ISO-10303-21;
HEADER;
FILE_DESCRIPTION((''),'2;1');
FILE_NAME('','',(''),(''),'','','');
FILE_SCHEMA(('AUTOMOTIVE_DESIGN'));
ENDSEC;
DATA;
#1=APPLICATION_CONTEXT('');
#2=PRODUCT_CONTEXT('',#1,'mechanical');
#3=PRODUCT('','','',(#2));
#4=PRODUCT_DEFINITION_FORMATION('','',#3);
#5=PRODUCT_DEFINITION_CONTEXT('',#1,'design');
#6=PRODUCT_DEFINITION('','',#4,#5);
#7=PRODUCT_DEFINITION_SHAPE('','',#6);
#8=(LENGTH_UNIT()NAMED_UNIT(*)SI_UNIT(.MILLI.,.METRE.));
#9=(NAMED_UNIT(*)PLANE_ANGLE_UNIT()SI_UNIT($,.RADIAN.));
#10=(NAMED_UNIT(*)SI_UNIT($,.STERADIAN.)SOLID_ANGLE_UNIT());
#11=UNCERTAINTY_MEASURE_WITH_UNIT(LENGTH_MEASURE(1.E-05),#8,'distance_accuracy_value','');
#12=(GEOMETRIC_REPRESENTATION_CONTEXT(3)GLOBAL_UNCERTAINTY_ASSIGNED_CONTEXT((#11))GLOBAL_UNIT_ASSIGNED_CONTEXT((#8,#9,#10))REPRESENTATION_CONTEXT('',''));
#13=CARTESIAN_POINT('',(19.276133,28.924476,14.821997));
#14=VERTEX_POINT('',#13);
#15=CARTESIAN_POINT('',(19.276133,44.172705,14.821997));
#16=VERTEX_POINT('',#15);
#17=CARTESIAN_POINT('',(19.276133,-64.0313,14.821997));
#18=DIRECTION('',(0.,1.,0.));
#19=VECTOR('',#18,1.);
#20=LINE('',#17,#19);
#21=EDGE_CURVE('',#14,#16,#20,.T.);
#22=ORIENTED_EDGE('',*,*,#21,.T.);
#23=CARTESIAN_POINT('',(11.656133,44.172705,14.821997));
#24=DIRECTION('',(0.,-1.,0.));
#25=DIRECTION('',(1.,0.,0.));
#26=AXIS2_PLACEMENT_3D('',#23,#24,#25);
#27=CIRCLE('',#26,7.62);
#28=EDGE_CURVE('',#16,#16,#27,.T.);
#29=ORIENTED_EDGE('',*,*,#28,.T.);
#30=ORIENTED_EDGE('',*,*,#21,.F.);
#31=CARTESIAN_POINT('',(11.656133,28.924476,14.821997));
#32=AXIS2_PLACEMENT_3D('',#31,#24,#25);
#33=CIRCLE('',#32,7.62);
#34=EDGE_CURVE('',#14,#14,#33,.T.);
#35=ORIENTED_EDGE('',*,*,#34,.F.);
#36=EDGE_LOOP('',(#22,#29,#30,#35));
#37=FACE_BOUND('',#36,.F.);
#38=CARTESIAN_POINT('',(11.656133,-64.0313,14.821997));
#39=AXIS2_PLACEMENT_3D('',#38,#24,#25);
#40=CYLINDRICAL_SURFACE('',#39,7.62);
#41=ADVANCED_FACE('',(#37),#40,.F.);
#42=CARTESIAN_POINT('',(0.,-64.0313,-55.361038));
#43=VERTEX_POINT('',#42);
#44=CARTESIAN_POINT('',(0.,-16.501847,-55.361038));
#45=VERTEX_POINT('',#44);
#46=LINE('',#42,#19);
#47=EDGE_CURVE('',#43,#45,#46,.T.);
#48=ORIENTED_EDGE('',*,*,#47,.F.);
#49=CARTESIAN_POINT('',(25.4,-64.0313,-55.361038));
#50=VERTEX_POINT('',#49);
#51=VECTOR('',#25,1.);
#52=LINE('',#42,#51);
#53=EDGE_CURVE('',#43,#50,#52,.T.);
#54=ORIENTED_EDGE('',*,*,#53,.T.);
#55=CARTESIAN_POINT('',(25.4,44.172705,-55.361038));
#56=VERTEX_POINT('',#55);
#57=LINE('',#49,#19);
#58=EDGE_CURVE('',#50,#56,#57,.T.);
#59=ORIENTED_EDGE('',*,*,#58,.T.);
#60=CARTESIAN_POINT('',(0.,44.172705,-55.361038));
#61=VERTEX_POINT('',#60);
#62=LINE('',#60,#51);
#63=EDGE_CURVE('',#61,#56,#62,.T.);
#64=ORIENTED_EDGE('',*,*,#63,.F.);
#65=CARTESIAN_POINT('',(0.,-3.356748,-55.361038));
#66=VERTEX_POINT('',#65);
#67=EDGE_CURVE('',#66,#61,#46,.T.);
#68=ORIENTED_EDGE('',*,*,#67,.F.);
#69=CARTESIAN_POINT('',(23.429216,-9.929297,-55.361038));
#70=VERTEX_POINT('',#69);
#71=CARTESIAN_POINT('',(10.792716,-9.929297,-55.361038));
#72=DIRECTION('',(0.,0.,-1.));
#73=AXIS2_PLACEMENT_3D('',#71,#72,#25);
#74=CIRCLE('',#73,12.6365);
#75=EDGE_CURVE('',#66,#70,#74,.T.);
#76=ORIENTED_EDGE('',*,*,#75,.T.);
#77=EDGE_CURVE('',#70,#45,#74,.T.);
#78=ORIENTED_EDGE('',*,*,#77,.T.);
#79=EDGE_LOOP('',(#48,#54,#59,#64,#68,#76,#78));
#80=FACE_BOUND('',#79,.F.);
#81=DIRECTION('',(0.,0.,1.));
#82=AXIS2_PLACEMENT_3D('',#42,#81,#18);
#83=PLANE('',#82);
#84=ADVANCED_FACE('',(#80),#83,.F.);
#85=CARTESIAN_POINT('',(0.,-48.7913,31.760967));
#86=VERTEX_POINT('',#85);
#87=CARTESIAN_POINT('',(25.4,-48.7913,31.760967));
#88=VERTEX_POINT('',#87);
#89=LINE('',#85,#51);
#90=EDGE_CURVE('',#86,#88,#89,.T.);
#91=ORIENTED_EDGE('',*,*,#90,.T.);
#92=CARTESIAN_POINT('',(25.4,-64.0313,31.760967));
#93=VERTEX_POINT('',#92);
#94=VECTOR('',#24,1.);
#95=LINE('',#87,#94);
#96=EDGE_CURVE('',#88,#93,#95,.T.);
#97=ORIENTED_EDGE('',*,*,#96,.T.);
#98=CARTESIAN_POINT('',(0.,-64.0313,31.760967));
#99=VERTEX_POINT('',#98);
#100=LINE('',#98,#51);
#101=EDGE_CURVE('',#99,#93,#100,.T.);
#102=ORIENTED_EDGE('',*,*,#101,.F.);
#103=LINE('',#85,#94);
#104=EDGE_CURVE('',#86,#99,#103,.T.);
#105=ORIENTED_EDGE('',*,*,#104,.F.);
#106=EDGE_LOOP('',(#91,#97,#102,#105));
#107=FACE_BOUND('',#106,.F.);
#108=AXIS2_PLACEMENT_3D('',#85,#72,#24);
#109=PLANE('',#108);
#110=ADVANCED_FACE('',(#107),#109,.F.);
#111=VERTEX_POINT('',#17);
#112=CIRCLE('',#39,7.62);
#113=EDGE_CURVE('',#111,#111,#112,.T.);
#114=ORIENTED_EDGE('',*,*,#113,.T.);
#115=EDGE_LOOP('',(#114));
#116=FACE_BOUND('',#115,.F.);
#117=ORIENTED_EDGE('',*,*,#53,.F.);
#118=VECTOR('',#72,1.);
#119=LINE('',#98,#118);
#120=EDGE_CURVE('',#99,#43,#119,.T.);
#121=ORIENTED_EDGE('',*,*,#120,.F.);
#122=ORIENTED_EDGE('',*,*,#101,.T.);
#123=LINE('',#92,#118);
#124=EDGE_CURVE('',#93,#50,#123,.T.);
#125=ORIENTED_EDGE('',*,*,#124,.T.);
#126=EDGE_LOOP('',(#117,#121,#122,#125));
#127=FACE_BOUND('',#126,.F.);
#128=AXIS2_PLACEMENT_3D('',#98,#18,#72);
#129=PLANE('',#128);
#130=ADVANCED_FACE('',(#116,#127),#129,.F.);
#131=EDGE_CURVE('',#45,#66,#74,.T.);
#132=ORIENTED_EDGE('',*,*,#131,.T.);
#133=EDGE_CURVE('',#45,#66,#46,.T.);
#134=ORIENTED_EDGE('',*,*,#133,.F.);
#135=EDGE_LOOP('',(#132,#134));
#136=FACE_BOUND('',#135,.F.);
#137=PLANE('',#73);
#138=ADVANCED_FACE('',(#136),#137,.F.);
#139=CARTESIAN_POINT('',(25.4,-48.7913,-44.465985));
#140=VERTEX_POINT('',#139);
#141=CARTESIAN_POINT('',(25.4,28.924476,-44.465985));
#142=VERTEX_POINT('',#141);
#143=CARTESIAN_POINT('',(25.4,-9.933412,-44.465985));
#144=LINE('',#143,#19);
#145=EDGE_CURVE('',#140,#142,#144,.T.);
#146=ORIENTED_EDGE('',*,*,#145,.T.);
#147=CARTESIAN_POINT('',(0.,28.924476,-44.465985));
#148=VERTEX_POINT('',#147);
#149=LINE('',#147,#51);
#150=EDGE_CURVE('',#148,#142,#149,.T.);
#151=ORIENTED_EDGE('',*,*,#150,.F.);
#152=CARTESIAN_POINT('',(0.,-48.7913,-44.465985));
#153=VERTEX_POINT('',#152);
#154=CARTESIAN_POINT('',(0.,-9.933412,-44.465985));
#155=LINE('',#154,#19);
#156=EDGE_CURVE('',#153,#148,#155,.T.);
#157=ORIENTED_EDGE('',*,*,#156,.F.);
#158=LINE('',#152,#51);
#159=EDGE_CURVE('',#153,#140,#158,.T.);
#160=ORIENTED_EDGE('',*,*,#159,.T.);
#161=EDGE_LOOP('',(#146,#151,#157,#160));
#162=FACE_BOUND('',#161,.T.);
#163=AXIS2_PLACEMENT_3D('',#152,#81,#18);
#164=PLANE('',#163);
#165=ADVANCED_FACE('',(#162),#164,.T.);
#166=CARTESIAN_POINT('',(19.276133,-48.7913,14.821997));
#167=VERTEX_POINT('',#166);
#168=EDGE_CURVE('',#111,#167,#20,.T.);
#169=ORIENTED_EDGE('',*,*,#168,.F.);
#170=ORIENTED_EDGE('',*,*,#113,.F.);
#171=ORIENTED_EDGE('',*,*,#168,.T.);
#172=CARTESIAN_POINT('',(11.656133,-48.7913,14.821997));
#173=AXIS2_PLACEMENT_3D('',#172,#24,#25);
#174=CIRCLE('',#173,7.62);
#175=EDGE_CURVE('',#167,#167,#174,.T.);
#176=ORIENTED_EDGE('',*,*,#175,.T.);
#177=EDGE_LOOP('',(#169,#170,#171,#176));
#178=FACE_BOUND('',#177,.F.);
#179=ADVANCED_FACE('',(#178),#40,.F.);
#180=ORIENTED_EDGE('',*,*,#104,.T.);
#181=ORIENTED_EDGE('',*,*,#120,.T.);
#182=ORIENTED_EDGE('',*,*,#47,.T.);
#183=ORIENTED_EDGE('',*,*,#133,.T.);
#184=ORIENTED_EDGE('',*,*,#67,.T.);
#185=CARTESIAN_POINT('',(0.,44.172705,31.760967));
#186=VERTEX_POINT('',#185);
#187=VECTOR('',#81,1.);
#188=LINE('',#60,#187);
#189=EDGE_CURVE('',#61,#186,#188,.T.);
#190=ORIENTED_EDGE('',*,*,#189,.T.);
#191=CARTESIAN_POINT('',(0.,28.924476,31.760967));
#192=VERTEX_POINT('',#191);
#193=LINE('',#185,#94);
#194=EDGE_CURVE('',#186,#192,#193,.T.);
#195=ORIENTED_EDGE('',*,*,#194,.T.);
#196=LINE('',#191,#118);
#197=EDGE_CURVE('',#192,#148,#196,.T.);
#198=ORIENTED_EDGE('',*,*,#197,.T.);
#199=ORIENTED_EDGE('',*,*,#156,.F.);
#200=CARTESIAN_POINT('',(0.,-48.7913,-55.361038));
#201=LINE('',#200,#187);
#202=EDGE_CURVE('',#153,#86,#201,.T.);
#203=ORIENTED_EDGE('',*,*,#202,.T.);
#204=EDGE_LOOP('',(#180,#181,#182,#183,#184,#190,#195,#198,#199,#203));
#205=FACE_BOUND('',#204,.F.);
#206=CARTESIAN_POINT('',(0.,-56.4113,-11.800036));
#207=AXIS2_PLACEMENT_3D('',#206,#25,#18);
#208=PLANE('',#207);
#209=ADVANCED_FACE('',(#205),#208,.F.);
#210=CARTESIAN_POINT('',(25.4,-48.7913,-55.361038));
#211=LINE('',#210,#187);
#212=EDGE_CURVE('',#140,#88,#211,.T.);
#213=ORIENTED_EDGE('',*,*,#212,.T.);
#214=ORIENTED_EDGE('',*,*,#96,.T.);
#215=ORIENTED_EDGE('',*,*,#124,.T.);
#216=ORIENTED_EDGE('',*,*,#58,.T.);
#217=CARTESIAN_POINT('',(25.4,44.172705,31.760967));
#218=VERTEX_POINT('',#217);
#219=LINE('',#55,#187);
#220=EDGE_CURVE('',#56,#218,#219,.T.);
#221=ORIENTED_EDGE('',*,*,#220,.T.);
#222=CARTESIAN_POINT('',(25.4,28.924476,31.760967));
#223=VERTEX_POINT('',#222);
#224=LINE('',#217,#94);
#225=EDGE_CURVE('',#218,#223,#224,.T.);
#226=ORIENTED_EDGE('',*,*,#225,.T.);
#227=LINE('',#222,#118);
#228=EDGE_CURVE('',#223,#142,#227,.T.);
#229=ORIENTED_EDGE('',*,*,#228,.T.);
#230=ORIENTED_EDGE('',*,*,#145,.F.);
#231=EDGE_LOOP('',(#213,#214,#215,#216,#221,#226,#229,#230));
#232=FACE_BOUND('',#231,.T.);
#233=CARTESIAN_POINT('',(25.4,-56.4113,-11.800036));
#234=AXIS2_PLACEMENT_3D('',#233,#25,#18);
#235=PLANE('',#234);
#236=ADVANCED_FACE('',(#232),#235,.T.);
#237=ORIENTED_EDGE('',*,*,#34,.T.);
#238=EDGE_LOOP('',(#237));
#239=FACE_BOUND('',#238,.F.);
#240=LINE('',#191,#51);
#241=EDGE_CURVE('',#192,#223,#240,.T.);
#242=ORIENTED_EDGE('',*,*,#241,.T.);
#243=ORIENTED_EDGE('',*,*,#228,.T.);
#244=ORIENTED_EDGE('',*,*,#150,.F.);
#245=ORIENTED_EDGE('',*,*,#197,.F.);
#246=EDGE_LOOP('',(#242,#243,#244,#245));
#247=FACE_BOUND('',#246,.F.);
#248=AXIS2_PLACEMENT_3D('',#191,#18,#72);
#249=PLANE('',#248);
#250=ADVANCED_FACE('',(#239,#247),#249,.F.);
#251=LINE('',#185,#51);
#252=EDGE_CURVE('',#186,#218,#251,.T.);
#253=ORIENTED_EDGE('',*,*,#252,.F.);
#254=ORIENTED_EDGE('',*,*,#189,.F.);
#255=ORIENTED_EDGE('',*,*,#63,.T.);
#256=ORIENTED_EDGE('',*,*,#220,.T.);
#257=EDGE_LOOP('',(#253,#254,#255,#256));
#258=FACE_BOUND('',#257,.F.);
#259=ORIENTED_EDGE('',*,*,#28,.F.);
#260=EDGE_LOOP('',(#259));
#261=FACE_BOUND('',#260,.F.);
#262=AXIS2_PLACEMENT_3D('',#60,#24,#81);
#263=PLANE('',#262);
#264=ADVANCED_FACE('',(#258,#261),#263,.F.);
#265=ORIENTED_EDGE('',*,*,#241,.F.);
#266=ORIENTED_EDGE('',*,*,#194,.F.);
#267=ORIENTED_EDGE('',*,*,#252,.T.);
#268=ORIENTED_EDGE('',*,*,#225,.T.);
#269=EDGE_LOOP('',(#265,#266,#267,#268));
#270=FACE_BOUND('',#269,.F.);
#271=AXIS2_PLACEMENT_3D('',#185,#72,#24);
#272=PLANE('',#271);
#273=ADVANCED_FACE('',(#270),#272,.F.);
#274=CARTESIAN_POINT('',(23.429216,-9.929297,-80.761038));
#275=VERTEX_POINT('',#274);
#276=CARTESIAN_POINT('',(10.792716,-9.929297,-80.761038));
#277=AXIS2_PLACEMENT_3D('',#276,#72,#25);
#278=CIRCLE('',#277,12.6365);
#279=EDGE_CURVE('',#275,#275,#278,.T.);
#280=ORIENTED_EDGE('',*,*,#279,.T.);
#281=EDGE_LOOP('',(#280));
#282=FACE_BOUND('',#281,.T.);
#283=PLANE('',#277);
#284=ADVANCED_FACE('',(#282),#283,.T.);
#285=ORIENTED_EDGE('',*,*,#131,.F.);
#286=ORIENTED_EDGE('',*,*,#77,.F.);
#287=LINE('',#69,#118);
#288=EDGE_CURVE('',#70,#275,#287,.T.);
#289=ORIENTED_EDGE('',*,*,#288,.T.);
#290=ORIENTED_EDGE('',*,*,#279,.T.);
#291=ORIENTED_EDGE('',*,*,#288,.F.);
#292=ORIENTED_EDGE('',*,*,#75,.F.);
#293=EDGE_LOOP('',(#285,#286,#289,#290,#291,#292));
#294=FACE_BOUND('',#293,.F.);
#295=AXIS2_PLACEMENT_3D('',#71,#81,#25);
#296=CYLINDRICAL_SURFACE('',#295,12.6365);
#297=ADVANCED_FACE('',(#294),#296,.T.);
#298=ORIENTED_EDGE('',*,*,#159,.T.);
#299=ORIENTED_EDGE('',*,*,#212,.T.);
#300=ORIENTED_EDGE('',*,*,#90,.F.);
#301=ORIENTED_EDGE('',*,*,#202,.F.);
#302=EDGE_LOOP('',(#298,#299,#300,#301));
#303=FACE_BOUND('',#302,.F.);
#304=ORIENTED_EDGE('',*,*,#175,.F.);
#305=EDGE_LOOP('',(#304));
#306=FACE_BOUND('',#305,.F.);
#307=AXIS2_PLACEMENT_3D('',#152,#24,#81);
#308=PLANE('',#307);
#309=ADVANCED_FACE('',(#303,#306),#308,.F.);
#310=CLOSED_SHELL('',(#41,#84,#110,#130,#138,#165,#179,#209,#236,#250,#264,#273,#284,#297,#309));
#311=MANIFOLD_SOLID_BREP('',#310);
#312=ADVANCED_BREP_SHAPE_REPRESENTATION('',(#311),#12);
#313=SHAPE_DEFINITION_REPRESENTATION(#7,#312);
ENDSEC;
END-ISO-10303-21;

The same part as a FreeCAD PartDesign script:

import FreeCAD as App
import Part
import Sketcher
from FreeCAD import Vector
Q = App.Units.Quantity

doc = App.newDocument("Part")
body = doc.addObject("PartDesign::Body", "Body")

sketch1 = doc.addObject("Sketcher::SketchObject", "Sketch")
body.addObject(sketch1)
sketch1.AttachmentSupport = (doc.YZ_Plane, [""])
sketch1.MapMode = "FlatFace"
sketch1.addGeometry([
    Part.LineSegment(Vector(-48.7913, 31.760967, 0), Vector(-64.0313, 31.760967, 0)),
    Part.LineSegment(Vector(-64.0313, 31.760967, 0), Vector(-64.0313, -55.361038, 0)),
    Part.LineSegment(Vector(-64.0313, -55.361038, 0), Vector(44.172705, -55.361038, 0)),
    Part.LineSegment(Vector(44.172705, -55.361038, 0), Vector(44.172705, 31.760967, 0)),
    Part.LineSegment(Vector(44.172705, 31.760967, 0), Vector(28.924476, 31.760967, 0)),
    Part.LineSegment(Vector(28.924476, 31.760967, 0), Vector(28.924476, -44.465985, 0)),
    Part.LineSegment(Vector(28.924476, -44.465985, 0), Vector(-48.7913, -44.465985, 0)),
    Part.LineSegment(Vector(-48.7913, -44.465985, 0), Vector(-48.7913, 31.760967, 0)),
], False)
sketch1.addConstraint([
    Sketcher.Constraint("Coincident", 0, 2, 1, 1),
    Sketcher.Constraint("Coincident", 1, 2, 2, 1),
    Sketcher.Constraint("Coincident", 2, 2, 3, 1),
    Sketcher.Constraint("Coincident", 3, 2, 4, 1),
    Sketcher.Constraint("Coincident", 4, 2, 5, 1),
    Sketcher.Constraint("Coincident", 5, 2, 6, 1),
    Sketcher.Constraint("Coincident", 6, 2, 7, 1),
    Sketcher.Constraint("Coincident", 7, 2, 0, 1),
    Sketcher.Constraint("Horizontal", 0),
    Sketcher.Constraint("Vertical", 1),
    Sketcher.Constraint("Horizontal", 2),
    Sketcher.Constraint("Vertical", 3),
    Sketcher.Constraint("Horizontal", 4),
    Sketcher.Constraint("Vertical", 5),
    Sketcher.Constraint("Horizontal", 6),
    Sketcher.Constraint("Vertical", 7),
    Sketcher.Constraint("Horizontal", 0, 2, 3, 2),
    Sketcher.Constraint("DistanceX", 0, 2, 0, 1, Q("0.6 in")),
    Sketcher.Constraint("DistanceX", 2, 1, 2, 2, Q("4.2600002 in")),
    Sketcher.Constraint("DistanceY", 1, 2, 1, 1, Q("3.4300002 in")),
    Sketcher.Constraint("DistanceX", 4, 2, 4, 1, 15.248228),
    Sketcher.Constraint("DistanceY", 5, 2, 5, 1, 76.226952),
    Sketcher.Constraint("DistanceX", 0, 2, -1, 1, 64.0313),
    Sketcher.Constraint("DistanceY", 1, 2, -1, 1, 55.361038),
])
pad1 = doc.addObject("PartDesign::Pad", "Pad")
body.addObject(pad1)
pad1.Profile = sketch1
pad1.Length = Q("1 in")

sketch2 = doc.addObject("Sketcher::SketchObject", "Sketch001")
body.addObject(sketch2)
sketch2.AttachmentSupport = (doc.XZ_Plane, [""])
sketch2.MapMode = "FlatFace"
sketch2.AttachmentOffset = App.Placement(Vector(0, 0, 64.0313), App.Rotation())
sketch2.addGeometry(Part.Circle(Vector(11.656133, 14.821997, 0), Vector(0, 0, 1), 7.62), False)
sketch2.addConstraint([
    Sketcher.Constraint("Diameter", 0, Q("0.6 in")),
    Sketcher.Constraint("DistanceX", -1, 1, 0, 3, 11.656133),
    Sketcher.Constraint("DistanceY", -1, 1, 0, 3, 14.821997),
])
pocket1 = doc.addObject("PartDesign::Pocket", "Pocket")
body.addObject(pocket1)
pocket1.Profile = sketch2
pocket1.Length = Q("5 in")

sketch3 = doc.addObject("Sketcher::SketchObject", "Sketch002")
body.addObject(sketch3)
sketch3.AttachmentSupport = (doc.XY_Plane, [""])
sketch3.MapMode = "FlatFace"
sketch3.AttachmentOffset = App.Placement(Vector(0, 0, -55.361038), App.Rotation())
sketch3.addGeometry(Part.Circle(Vector(10.792716, -9.929297, 0), Vector(0, 0, 1), 12.6365), False)
sketch3.addConstraint([
    Sketcher.Constraint("Diameter", 0, Q("0.995 in")),
    Sketcher.Constraint("DistanceX", -1, 1, 0, 3, 10.792716),
    Sketcher.Constraint("DistanceY", 0, 3, -1, 1, 9.929297),
])
pad2 = doc.addObject("PartDesign::Pad", "Pad001")
body.addObject(pad2)
pad2.Profile = sketch3
pad2.Length = Q("1 in")
pad2.Reversed = True

doc.recompute()
